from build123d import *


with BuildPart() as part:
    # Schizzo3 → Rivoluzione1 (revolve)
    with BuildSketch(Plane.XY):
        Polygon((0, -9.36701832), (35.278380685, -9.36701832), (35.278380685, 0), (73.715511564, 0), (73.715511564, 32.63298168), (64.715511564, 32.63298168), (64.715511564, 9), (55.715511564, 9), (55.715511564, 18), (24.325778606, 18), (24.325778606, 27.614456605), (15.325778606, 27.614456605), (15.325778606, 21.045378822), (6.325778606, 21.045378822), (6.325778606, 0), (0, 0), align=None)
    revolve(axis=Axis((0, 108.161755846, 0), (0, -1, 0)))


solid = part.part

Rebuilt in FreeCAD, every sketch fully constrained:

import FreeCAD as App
import Part
import Sketcher

V = App.Vector
Q = App.Units.Quantity

doc = App.newDocument("Part")
body = doc.addObject("PartDesign::Body", "Body")

sketch1 = doc.addObject("Sketcher::SketchObject", "Sketch")
body.addObject(sketch1)
sketch1.AttachmentSupport = (doc.XY_Plane, [""])
sketch1.MapMode = "FlatFace"
sketch1.addGeometry(Part.LineSegment(V(0, -9, 0), V(35, -9, 0)), False)
sketch1.addGeometry(Part.LineSegment(V(35, -9, 0), V(35, 0, 0)), False)
sketch1.addGeometry(Part.LineSegment(V(35, 0, 0), V(74, 0, 0)), False)
sketch1.addGeometry(Part.LineSegment(V(74, 0, 0), V(74, 33, 0)), False)
sketch1.addGeometry(Part.LineSegment(V(74, 33, 0), V(65, 33, 0)), False)
sketch1.addGeometry(Part.LineSegment(V(65, 33, 0), V(65, 9, 0)), False)
sketch1.addGeometry(Part.LineSegment(V(65, 9, 0), V(56, 9, 0)), False)
sketch1.addGeometry(Part.LineSegment(V(56, 9, 0), V(56, 18, 0)), False)
sketch1.addGeometry(Part.LineSegment(V(56, 18, 0), V(24, 18, 0)), False)
sketch1.addGeometry(Part.LineSegment(V(24, 18, 0), V(24, 28, 0)), False)
sketch1.addGeometry(Part.LineSegment(V(24, 28, 0), V(15, 28, 0)), False)
sketch1.addGeometry(Part.LineSegment(V(15, 28, 0), V(15, 21, 0)), False)
sketch1.addGeometry(Part.LineSegment(V(15, 21, 0), V(6, 21, 0)), False)
sketch1.addGeometry(Part.LineSegment(V(6, 21, 0), V(6, 0, 0)), False)
sketch1.addGeometry(Part.LineSegment(V(6, 0, 0), V(0, 0, 0)), False)
sketch1.addGeometry(Part.LineSegment(V(0, 0, 0), V(0, -9, 0)), False)
sketch1.addConstraint(Sketcher.Constraint("Coincident", 0, 2, 1, 1))
sketch1.addConstraint(Sketcher.Constraint("Coincident", 1, 2, 2, 1))
sketch1.addConstraint(Sketcher.Constraint("Coincident", 2, 2, 3, 1))
sketch1.addConstraint(Sketcher.Constraint("Coincident", 3, 2, 4, 1))
sketch1.addConstraint(Sketcher.Constraint("Coincident", 4, 2, 5, 1))
sketch1.addConstraint(Sketcher.Constraint("Coincident", 5, 2, 6, 1))
sketch1.addConstraint(Sketcher.Constraint("Coincident", 6, 2, 7, 1))
sketch1.addConstraint(Sketcher.Constraint("Coincident", 7, 2, 8, 1))
sketch1.addConstraint(Sketcher.Constraint("Coincident", 8, 2, 9, 1))
sketch1.addConstraint(Sketcher.Constraint("Coincident", 9, 2, 10, 1))
sketch1.addConstraint(Sketcher.Constraint("Coincident", 10, 2, 11, 1))
sketch1.addConstraint(Sketcher.Constraint("Coincident", 11, 2, 12, 1))
sketch1.addConstraint(Sketcher.Constraint("Coincident", 12, 2, 13, 1))
sketch1.addConstraint(Sketcher.Constraint("Coincident", 13, 2, 14, 1))
sketch1.addConstraint(Sketcher.Constraint("Coincident", 14, 2, 15, 1))
sketch1.addConstraint(Sketcher.Constraint("Coincident", 15, 2, 0, 1))
sketch1.addConstraint(Sketcher.Constraint("Horizontal", 0))
sketch1.addConstraint(Sketcher.Constraint("Vertical", 1))
sketch1.addConstraint(Sketcher.Constraint("Horizontal", 2))
sketch1.addConstraint(Sketcher.Constraint("Vertical", 3))
sketch1.addConstraint(Sketcher.Constraint("Horizontal", 4))
sketch1.addConstraint(Sketcher.Constraint("Vertical", 5))
sketch1.addConstraint(Sketcher.Constraint("Horizontal", 6))
sketch1.addConstraint(Sketcher.Constraint("Vertical", 7))
sketch1.addConstraint(Sketcher.Constraint("Horizontal", 8))
sketch1.addConstraint(Sketcher.Constraint("Vertical", 9))
sketch1.addConstraint(Sketcher.Constraint("Horizontal", 10))
sketch1.addConstraint(Sketcher.Constraint("Vertical", 11))
sketch1.addConstraint(Sketcher.Constraint("Horizontal", 12))
sketch1.addConstraint(Sketcher.Constraint("Vertical", 13))
sketch1.addConstraint(Sketcher.Constraint("Horizontal", 14))
sketch1.addConstraint(Sketcher.Constraint("Vertical", 15))
sketch1.addConstraint(Sketcher.Constraint("Coincident", 14, 2, -1, 1))
sketch1.addConstraint(Sketcher.Constraint("PointOnObject", 1, 2, -1))
sketch1.addConstraint(Sketcher.Constraint("Equal", 4, 6))
sketch1.addConstraint(Sketcher.Constraint("Equal", 6, 10))
sketch1.addConstraint(Sketcher.Constraint("Equal", 10, 12))
sketch1.addConstraint(Sketcher.Constraint("Equal", 12, 7))
sketch1.addConstraint(Sketcher.Constraint("DistanceX", 4, 2, 4, 1, Q("9 mm")))
sketch1.addConstraint(Sketcher.Constraint("DistanceY", -1, 1, 5, 2, Q("9 mm")))
sketch1.addConstraint(Sketcher.Constraint("DistanceY", 0, 2, 3, 2, Q("42 mm")))
sketch1.addConstraint(Sketcher.Constraint("DistanceX", 0, 1, 0, 2, Q("35.278381 mm")))
sketch1.addConstraint(Sketcher.Constraint("DistanceX", 2, 1, 2, 2, Q("38.437131 mm")))
sketch1.addConstraint(Sketcher.Constraint("DistanceX", 14, 2, 14, 1, Q("6.325779 mm")))
sketch1.addConstraint(Sketcher.Constraint("DistanceY", 1, 1, 1, 2, Q("9.367018 mm")))
sketch1.addConstraint(Sketcher.Constraint("DistanceY", 13, 2, 13, 1, Q("21.045379 mm")))
sketch1.addConstraint(Sketcher.Constraint("DistanceY", 9, 1, 9, 2, Q("9.614457 mm")))
revolution = doc.addObject("PartDesign::Revolution", "Revolution")
body.addObject(revolution)
revolution.Profile = sketch1
revolution.ReferenceAxis = (sketch1, ["V_Axis"])
revolution.Angle = 360

doc.recompute()
